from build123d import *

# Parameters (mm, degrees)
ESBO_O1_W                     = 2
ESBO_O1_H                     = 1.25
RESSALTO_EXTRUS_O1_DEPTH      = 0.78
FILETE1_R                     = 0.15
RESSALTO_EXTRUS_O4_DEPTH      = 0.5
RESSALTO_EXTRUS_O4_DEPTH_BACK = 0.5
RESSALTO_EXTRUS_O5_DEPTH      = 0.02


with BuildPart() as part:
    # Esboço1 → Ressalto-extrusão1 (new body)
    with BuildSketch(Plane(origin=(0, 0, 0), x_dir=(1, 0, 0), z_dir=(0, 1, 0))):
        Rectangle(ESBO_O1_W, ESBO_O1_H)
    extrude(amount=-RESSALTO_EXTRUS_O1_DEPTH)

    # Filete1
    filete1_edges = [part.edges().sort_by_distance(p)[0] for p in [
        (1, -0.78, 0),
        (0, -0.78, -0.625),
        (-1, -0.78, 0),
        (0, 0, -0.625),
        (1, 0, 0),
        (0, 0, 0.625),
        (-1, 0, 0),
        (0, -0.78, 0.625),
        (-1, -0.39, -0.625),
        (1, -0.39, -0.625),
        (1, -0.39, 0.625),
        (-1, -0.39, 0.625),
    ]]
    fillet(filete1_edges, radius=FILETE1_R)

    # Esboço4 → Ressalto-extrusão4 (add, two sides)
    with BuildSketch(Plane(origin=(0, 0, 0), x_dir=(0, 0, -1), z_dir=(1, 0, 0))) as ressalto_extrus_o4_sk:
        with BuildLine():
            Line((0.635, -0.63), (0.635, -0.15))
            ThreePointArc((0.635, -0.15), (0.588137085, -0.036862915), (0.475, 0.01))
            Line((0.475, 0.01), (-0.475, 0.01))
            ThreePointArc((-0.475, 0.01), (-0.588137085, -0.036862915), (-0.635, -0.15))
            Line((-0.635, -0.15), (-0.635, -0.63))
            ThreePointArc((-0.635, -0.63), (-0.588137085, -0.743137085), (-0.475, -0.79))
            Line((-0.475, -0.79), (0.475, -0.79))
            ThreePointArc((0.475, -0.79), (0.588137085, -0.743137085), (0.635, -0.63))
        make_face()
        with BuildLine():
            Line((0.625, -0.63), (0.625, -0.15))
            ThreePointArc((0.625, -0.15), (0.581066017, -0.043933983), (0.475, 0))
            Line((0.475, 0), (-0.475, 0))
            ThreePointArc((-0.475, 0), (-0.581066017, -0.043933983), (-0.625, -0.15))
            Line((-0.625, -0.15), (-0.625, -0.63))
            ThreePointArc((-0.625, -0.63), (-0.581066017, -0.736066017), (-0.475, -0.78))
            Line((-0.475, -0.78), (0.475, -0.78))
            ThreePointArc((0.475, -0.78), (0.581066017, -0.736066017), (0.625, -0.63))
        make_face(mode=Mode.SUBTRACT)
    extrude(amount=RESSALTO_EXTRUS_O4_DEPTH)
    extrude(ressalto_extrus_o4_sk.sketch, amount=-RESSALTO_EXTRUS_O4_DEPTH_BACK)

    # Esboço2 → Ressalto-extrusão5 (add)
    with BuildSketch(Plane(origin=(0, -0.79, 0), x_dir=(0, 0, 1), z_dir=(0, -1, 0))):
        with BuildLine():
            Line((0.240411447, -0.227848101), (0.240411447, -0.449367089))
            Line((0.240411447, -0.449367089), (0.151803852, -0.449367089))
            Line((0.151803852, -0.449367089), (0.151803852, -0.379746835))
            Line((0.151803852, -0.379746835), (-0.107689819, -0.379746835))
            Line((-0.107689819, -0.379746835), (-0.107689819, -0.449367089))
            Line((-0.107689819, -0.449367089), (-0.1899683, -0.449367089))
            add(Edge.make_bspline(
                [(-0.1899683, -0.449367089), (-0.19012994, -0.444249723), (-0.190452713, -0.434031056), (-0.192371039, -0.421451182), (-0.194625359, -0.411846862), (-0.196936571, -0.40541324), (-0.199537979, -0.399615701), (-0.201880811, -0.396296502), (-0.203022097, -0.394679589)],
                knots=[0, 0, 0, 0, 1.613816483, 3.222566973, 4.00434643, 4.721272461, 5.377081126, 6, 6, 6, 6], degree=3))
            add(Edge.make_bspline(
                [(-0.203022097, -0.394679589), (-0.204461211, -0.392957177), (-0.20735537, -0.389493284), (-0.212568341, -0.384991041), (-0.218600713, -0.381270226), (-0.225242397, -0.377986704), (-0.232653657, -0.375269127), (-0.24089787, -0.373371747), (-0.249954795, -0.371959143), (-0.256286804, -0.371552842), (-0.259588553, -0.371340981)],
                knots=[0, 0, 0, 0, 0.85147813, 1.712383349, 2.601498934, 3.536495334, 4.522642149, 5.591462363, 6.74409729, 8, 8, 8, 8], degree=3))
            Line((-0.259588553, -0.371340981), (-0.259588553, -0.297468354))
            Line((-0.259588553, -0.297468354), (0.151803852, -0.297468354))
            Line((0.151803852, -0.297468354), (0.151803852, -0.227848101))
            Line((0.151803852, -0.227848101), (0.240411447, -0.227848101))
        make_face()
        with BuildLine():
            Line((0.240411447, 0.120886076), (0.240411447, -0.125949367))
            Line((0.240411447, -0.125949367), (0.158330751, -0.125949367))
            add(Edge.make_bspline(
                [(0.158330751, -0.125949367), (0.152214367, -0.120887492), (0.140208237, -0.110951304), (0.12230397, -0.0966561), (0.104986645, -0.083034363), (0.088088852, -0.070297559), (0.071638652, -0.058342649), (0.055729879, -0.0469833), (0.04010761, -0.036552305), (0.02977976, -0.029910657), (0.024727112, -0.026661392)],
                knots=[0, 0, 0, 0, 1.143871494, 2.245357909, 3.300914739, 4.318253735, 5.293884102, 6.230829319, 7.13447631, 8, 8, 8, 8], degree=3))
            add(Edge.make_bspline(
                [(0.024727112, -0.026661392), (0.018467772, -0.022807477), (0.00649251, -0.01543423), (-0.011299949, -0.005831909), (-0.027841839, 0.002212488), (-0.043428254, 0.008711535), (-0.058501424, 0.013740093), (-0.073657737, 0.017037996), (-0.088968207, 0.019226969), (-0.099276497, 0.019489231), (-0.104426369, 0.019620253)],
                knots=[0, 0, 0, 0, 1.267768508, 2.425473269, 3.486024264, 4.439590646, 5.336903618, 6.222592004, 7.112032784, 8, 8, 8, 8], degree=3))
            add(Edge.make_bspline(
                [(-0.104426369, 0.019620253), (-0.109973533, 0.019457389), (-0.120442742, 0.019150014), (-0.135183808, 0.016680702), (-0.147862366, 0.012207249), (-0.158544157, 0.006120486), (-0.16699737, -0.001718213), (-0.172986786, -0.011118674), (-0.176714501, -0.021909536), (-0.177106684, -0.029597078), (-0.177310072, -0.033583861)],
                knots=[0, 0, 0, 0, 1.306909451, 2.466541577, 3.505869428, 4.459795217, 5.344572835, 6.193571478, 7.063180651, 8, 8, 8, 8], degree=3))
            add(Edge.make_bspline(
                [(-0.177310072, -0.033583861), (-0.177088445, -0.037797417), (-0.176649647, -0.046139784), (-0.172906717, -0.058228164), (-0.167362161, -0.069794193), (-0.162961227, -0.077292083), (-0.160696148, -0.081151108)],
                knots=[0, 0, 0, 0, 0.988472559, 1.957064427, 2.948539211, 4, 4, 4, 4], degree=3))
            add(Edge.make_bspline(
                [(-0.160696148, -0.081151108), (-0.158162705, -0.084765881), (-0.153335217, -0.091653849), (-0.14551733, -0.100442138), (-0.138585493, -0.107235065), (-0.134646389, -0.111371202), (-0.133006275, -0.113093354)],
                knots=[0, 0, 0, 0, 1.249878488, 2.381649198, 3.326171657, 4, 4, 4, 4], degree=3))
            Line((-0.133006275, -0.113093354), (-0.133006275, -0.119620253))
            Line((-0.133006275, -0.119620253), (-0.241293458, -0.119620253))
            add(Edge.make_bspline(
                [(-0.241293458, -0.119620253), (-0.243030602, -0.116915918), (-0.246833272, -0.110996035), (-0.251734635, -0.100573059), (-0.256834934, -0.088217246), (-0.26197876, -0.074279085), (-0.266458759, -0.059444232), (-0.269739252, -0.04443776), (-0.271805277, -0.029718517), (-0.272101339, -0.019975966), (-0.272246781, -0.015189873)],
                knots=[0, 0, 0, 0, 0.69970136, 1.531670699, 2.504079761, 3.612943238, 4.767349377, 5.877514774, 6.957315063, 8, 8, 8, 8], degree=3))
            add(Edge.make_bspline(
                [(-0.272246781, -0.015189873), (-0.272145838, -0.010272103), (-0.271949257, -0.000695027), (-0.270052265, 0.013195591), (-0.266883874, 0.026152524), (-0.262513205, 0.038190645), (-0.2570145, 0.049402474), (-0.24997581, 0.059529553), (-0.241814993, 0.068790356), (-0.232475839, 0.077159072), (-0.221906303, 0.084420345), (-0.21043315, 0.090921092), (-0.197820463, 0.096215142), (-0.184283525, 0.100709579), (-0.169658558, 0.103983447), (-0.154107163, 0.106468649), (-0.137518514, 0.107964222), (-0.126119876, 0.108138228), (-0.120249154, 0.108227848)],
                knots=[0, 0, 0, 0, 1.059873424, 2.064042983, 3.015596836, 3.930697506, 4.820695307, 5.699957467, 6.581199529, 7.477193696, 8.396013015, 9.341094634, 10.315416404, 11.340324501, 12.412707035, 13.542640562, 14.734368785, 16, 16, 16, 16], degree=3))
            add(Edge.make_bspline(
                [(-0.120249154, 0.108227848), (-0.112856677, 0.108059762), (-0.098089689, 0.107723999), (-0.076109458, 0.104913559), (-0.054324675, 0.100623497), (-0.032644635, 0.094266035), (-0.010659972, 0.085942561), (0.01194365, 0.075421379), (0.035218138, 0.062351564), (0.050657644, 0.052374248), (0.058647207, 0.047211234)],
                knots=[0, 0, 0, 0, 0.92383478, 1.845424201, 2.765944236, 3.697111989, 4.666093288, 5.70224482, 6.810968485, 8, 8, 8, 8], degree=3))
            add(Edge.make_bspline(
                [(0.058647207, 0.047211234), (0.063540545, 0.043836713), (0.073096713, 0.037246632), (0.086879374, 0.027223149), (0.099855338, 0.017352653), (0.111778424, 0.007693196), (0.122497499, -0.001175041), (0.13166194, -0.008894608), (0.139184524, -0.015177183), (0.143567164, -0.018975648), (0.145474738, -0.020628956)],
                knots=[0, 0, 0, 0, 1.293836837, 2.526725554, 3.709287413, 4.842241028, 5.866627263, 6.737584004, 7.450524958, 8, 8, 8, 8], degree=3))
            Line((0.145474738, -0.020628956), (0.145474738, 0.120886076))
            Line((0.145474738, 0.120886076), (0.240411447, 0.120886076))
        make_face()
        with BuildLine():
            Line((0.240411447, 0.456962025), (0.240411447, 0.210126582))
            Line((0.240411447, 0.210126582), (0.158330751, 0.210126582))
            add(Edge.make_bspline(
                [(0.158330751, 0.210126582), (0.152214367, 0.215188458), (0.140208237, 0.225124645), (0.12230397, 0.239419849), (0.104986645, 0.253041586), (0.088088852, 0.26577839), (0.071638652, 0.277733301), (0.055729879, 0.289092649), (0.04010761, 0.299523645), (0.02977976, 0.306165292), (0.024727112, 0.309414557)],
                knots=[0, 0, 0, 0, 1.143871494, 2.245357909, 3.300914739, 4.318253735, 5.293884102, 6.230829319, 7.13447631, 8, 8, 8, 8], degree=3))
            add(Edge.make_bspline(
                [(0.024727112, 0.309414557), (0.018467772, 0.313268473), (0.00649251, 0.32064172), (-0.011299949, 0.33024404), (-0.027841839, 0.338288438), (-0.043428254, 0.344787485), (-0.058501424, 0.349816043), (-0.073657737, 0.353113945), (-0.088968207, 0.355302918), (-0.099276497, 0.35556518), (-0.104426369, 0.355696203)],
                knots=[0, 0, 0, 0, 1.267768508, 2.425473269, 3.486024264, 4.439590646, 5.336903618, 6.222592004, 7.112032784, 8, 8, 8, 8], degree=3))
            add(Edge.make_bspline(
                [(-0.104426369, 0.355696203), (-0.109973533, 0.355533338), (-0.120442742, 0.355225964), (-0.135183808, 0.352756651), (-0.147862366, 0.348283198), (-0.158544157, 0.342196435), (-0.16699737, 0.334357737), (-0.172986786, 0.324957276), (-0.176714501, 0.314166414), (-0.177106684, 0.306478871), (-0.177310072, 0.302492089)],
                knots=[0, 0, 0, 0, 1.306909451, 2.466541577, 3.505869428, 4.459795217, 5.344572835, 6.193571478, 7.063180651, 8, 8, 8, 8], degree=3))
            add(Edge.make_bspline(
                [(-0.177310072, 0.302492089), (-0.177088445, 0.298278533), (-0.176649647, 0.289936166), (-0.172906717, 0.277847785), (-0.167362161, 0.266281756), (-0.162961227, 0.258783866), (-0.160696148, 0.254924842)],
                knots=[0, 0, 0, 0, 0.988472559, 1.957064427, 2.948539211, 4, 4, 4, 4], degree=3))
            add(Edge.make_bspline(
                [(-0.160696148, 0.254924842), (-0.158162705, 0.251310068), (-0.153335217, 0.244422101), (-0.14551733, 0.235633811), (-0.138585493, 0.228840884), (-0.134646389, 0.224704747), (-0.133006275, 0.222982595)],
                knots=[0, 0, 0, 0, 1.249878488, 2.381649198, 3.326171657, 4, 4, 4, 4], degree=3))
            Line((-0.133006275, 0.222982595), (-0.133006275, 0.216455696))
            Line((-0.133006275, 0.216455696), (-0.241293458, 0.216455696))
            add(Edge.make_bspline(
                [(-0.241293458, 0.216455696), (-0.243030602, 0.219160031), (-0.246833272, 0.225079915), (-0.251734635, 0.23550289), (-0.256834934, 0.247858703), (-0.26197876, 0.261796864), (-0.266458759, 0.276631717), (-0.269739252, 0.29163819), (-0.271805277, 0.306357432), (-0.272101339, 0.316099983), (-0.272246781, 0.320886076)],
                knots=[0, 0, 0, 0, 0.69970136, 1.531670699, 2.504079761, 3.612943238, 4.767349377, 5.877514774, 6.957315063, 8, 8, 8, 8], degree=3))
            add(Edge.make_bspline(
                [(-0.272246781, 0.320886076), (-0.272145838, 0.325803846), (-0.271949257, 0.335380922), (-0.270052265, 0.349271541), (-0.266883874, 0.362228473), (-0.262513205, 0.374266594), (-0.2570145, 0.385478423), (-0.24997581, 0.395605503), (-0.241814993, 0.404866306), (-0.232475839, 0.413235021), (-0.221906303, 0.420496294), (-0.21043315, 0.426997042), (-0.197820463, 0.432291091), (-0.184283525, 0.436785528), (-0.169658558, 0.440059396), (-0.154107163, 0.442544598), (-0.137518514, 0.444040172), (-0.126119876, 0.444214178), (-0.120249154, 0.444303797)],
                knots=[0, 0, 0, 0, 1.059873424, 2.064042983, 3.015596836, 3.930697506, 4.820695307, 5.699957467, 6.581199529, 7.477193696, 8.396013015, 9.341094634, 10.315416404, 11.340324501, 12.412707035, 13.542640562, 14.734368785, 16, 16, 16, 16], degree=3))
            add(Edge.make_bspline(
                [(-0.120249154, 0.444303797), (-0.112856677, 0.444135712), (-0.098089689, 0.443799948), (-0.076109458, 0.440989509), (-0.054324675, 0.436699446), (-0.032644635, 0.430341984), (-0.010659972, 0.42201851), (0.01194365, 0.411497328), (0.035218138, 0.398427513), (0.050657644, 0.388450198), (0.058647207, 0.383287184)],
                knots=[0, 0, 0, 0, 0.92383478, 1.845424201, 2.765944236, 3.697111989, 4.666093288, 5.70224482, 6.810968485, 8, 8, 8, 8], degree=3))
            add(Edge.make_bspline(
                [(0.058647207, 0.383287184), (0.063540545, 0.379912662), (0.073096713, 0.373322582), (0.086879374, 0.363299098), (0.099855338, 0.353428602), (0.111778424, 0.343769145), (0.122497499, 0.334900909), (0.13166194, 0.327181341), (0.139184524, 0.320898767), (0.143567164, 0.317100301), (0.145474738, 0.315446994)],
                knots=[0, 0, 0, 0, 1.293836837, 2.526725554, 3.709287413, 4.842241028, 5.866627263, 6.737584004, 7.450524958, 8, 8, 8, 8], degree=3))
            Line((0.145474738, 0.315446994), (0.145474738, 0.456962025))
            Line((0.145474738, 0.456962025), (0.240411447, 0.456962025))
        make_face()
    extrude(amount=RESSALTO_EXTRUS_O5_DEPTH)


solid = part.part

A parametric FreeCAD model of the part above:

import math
import FreeCAD as App
import Part
import Sketcher

V = App.Vector

doc = App.newDocument("Part")
params = doc.addObject("Spreadsheet::Sheet", "Params")
for row, (alias, value) in enumerate([
    ("sketch1_width", "2 mm"),
    ("sketch1_height", "1.25 mm"),
    ("pad1_length", "0.78 mm"),
    ("fillet_radius", "0.15 mm"),
    ("sketch2_radius", "0.16 mm"),
    ("sketch2_radius2", "0.15 mm"),
    ("sketch2_width", "0.48 mm"),
    ("sketch2_height", "0.95 mm"),
    ("pad2_length", "0.5 mm"),
    ("pad2_length2", "0.5 mm"),
    ("pad3_length", "0.02 mm"),
], start=1):
    params.set(f"A{row}", alias)
    params.set(f"B{row}", "=" + value)
    params.setAlias(f"B{row}", alias)

body = doc.addObject("PartDesign::Body", "Body")

# Sketch on XZ plane
sketch1 = doc.addObject("Sketcher::SketchObject", "Sketch")
body.addObject(sketch1)
sketch1.AttachmentSupport = (doc.XZ_Plane, [""])
sketch1.MapMode = "FlatFace"
sketch1.addGeometry([
    Part.LineSegment(V(-1, -0.625, 0), V(-1, 0.625, 0)),
    Part.LineSegment(V(-1, 0.625, 0), V(1, 0.625, 0)),
    Part.LineSegment(V(1, 0.625, 0), V(1, -0.625, 0)),
    Part.LineSegment(V(1, -0.625, 0), V(-1, -0.625, 0)),
], False)
sketch1.addConstraint([
    Sketcher.Constraint("Coincident", 0, 2, 1, 1),
    Sketcher.Constraint("Coincident", 1, 2, 2, 1),
    Sketcher.Constraint("Coincident", 2, 2, 3, 1),
    Sketcher.Constraint("Coincident", 3, 2, 0, 1),
    Sketcher.Constraint("Vertical", 0),
    Sketcher.Constraint("Horizontal", 1),
    Sketcher.Constraint("Vertical", 2),
    Sketcher.Constraint("Horizontal", 3),
    Sketcher.Constraint("Symmetric", 0, 2, 2, 2, -1, 1),
    Sketcher.Constraint("DistanceX", 1, 1, 1, 2, 2.0),
    Sketcher.Constraint("DistanceY", 0, 1, 0, 2, 1.25),
])
sketch1.setExpression("Constraints[9]", "Params.sketch1_width")
sketch1.setExpression("Constraints[10]", "Params.sketch1_height")
pad1 = doc.addObject("PartDesign::Pad", "Pad")
body.addObject(pad1)
pad1.Profile = sketch1
pad1.setExpression("Length", "Params.pad1_length")
doc.recompute()

fillet = doc.addObject("PartDesign::Fillet", "Fillet")
body.addObject(fillet)
fillet.Base = (pad1, ["Edge1"])
fillet.UseAllEdges = True
fillet.setExpression("Radius", "Params.fillet_radius")

# Sketch on YZ plane
sketch2 = doc.addObject("Sketcher::SketchObject", "Sketch001")
body.addObject(sketch2)
sketch2.AttachmentSupport = (doc.YZ_Plane, [""])
sketch2.MapMode = "FlatFace"
sketch2.addGeometry([
    Part.LineSegment(V(-0.63, -0.635, 0), V(-0.15, -0.635, 0)),  # 0
    Part.ArcOfCircle(Part.Circle(V(-0.15, -0.475, 0), V(0, 0, 1), 0.16), math.radians(-90), math.radians(0)),  # 1
    Part.LineSegment(V(0.01, -0.475, 0), V(0.01, 0.475, 0)),  # 2
    Part.ArcOfCircle(Part.Circle(V(-0.15, 0.475, 0), V(0, 0, 1), 0.16), math.radians(0), math.radians(90)),  # 3
    Part.LineSegment(V(-0.15, 0.635, 0), V(-0.63, 0.635, 0)),  # 4
    Part.ArcOfCircle(Part.Circle(V(-0.63, 0.475, 0), V(0, 0, 1), 0.16), math.radians(90), math.radians(180)),  # 5
    Part.LineSegment(V(-0.79, 0.475, 0), V(-0.79, -0.475, 0)),  # 6
    Part.ArcOfCircle(Part.Circle(V(-0.63, -0.475, 0), V(0, 0, 1), 0.16), math.radians(180), math.radians(270)),  # 7
    Part.LineSegment(V(-0.15, -0.625, 0), V(-0.63, -0.625, 0)),  # 8
    Part.ArcOfCircle(Part.Circle(V(-0.63, -0.475, 0), V(0, 0, 1), 0.15), math.radians(-180), math.radians(-90)),  # 9
    Part.LineSegment(V(-0.78, -0.475, 0), V(-0.78, 0.475, 0)),  # 10
    Part.ArcOfCircle(Part.Circle(V(-0.63, 0.475, 0), V(0, 0, 1), 0.15), math.radians(90), math.radians(180)),  # 11
    Part.LineSegment(V(-0.63, 0.625, 0), V(-0.15, 0.625, 0)),  # 12
    Part.ArcOfCircle(Part.Circle(V(-0.15, 0.475, 0), V(0, 0, 1), 0.15), math.radians(0), math.radians(90)),  # 13
    Part.LineSegment(V(0, 0.475, 0), V(0, -0.475, 0)),  # 14
    Part.ArcOfCircle(Part.Circle(V(-0.15, -0.475, 0), V(0, 0, 1), 0.15), math.radians(-90), math.radians(0)),  # 15
], False)
sketch2.addConstraint([
    Sketcher.Constraint("Tangent", 0, 2, 1, 1),
    Sketcher.Constraint("Tangent", 1, 2, 2, 1),
    Sketcher.Constraint("Tangent", 2, 2, 3, 1),
    Sketcher.Constraint("Tangent", 3, 2, 4, 1),
    Sketcher.Constraint("Tangent", 4, 2, 5, 1),
    Sketcher.Constraint("Tangent", 5, 2, 6, 1),
    Sketcher.Constraint("Tangent", 6, 2, 7, 1),
    Sketcher.Constraint("Tangent", 7, 2, 0, 1),
    Sketcher.Constraint("Tangent", 8, 2, 9, 2),
    Sketcher.Constraint("Tangent", 9, 1, 10, 1),
    Sketcher.Constraint("Tangent", 10, 2, 11, 2),
    Sketcher.Constraint("Tangent", 11, 1, 12, 1),
    Sketcher.Constraint("Tangent", 12, 2, 13, 2),
    Sketcher.Constraint("Tangent", 13, 1, 14, 1),
    Sketcher.Constraint("Tangent", 14, 2, 15, 2),
    Sketcher.Constraint("Tangent", 15, 1, 8, 1),
    Sketcher.Constraint("Horizontal", 0),
    Sketcher.Constraint("Vertical", 2),
    Sketcher.Constraint("Horizontal", 4),
    Sketcher.Constraint("Vertical", 6),
    Sketcher.Constraint("Horizontal", 8),
    Sketcher.Constraint("Vertical", 10),
    Sketcher.Constraint("Horizontal", 12),
    Sketcher.Constraint("Vertical", 14),
    Sketcher.Constraint("Coincident", 9, 3, 7, 3),
    Sketcher.Constraint("Coincident", 11, 3, 5, 3),
    Sketcher.Constraint("Coincident", 13, 3, 3, 3),
    Sketcher.Constraint("Equal", 1, 3),
    Sketcher.Constraint("Equal", 3, 5),
    Sketcher.Constraint("Equal", 5, 7),
    Sketcher.Constraint("Equal", 13, 15),
    Sketcher.Constraint("Symmetric", 13, 1, 14, 2, -1, 1),
    Sketcher.Constraint("Radius", 1, 0.16),
    Sketcher.Constraint("Radius", 9, 0.15),
    Sketcher.Constraint("DistanceX", 0, 1, 0, 2, 0.48),
    Sketcher.Constraint("DistanceY", 2, 1, 2, 2, 0.95),
])
sketch2.setExpression("Constraints[32]", "Params.sketch2_radius")
sketch2.setExpression("Constraints[33]", "Params.sketch2_radius2")
sketch2.setExpression("Constraints[34]", "Params.sketch2_width")
sketch2.setExpression("Constraints[35]", "Params.sketch2_height")
pad2 = doc.addObject("PartDesign::Pad", "Pad001")
body.addObject(pad2)
pad2.Profile = sketch2
pad2.Type = "TwoLengths"
pad2.setExpression("Length", "Params.pad2_length")
pad2.setExpression("Length2", "Params.pad2_length2")

# Sketch on XZ plane
sketch3 = doc.addObject("Sketcher::SketchObject", "Sketch002")
body.addObject(sketch3)
sketch3.AttachmentSupport = (doc.XZ_Plane, [""])
sketch3.MapMode = "FlatFace"
sketch3.AttachmentOffset = App.Placement(V(0, 0, 0.79), App.Rotation())
sketch3.addGeometry([
    Part.LineSegment(V(0.449367, 0.240411, 0), V(0.227848, 0.240411, 0)),  # 0
    Part.LineSegment(V(0.227848, 0.240411, 0), V(0.227848, 0.151804, 0)),  # 1
    Part.LineSegment(V(0.227848, 0.151804, 0), V(0.297468, 0.151804, 0)),  # 2
    Part.LineSegment(V(0.297468, 0.151804, 0), V(0.297468, -0.259589, 0)),  # 3
    Part.LineSegment(V(0.297468, -0.259589, 0), V(0.371341, -0.259589, 0)),  # 4
    Part.BSplineCurve([V(0.39468, -0.203022, 0), V(0.392957, -0.204461, 0), V(0.389493, -0.207355, 0), V(0.384991, -0.212568, 0), V(0.38127, -0.218601, 0), V(0.377987, -0.225242, 0), V(0.375269, -0.232654, 0), V(0.373372, -0.240898, 0), V(0.371959, -0.249955, 0), V(0.371553, -0.256287, 0), V(0.371341, -0.259589, 0)], [4, 1, 1, 1, 1, 1, 1, 1, 4], [0, 0.85147813, 1.712383349, 2.601498934, 3.536495334, 4.522642149, 5.591462363, 6.74409729, 8], False, 3, [1, 1, 1, 1, 1, 1, 1, 1, 1, 1, 1], False),  # 5
    Part.BSplineCurve([V(0.449367, -0.189968, 0), V(0.44425, -0.19013, 0), V(0.434031, -0.190453, 0), V(0.421451, -0.192371, 0), V(0.411847, -0.194625, 0), V(0.405413, -0.196937, 0), V(0.399616, -0.199538, 0), V(0.396297, -0.201881, 0), V(0.39468, -0.203022, 0)], [4, 1, 1, 1, 1, 1, 4], [0, 1.613816483, 3.222566973, 4.00434643, 4.721272461, 5.377081126, 6], False, 3, [1, 1, 1, 1, 1, 1, 1, 1, 1], False),  # 6
    Part.LineSegment(V(0.449367, -0.189968, 0), V(0.449367, -0.10769, 0)),  # 7
    Part.LineSegment(V(0.449367, -0.10769, 0), V(0.379747, -0.10769, 0)),  # 8
    Part.LineSegment(V(0.379747, -0.10769, 0), V(0.379747, 0.151804, 0)),  # 9
    Part.LineSegment(V(0.379747, 0.151804, 0), V(0.449367, 0.151804, 0)),  # 10
    Part.LineSegment(V(0.449367, 0.151804, 0), V(0.449367, 0.240411, 0)),  # 11
    Part.LineSegment(V(0.125949, 0.240411, 0), V(-0.120886, 0.240411, 0)),  # 12
    Part.LineSegment(V(-0.120886, 0.240411, 0), V(-0.120886, 0.145475, 0)),  # 13
    Part.LineSegment(V(-0.120886, 0.145475, 0), V(0.020629, 0.145475, 0)),  # 14
    Part.BSplineCurve([V(-0.047211, 0.058647, 0), V(-0.043837, 0.063541, 0), V(-0.037247, 0.073097, 0), V(-0.027223, 0.086879, 0), V(-0.017353, 0.099855, 0), V(-0.007693, 0.111778, 0), V(0.001175, 0.122497, 0), V(0.008895, 0.131662, 0), V(0.015177, 0.139185, 0), V(0.018976, 0.143567, 0), V(0.020629, 0.145475, 0)], [4, 1, 1, 1, 1, 1, 1, 1, 4], [0, 1.293836837, 2.526725554, 3.709287413, 4.842241028, 5.866627263, 6.737584004, 7.450524958, 8], False, 3, [1, 1, 1, 1, 1, 1, 1, 1, 1, 1, 1], False),  # 15
    Part.BSplineCurve([V(-0.108228, -0.120249, 0), V(-0.10806, -0.112857, 0), V(-0.107724, -0.09809, 0), V(-0.104914, -0.076109, 0), V(-0.100623, -0.054325, 0), V(-0.094266, -0.032645, 0), V(-0.085943, -0.01066, 0), V(-0.075421, 0.011944, 0), V(-0.062352, 0.035218, 0), V(-0.052374, 0.050658, 0), V(-0.047211, 0.058647, 0)], [4, 1, 1, 1, 1, 1, 1, 1, 4], [0, 0.92383478, 1.845424201, 2.765944236, 3.697111989, 4.666093288, 5.70224482, 6.810968485, 8], False, 3, [1, 1, 1, 1, 1, 1, 1, 1, 1, 1, 1], False),  # 16
    Part.BSplineCurve([V(0.01519, -0.272247, 0), V(0.010272, -0.272146, 0), V(0.000695, -0.271949, 0), V(-0.013196, -0.270052, 0), V(-0.026153, -0.266884, 0), V(-0.038191, -0.262513, 0), V(-0.049402, -0.257014, 0), V(-0.05953, -0.249976, 0), V(-0.06879, -0.241815, 0), V(-0.077159, -0.232476, 0), V(-0.08442, -0.221906, 0), V(-0.090921, -0.210433, 0), V(-0.096215, -0.19782, 0), V(-0.10071, -0.184284, 0), V(-0.103983, -0.169659, 0), V(-0.106469, -0.154107, 0), V(-0.107964, -0.137519, 0), V(-0.108138, -0.12612, 0), V(-0.108228, -0.120249, 0)], [4, 1, 1, 1, 1, 1, 1, 1, 1, 1, 1, 1, 1, 1, 1, 1, 4], [0, 1.059873424, 2.064042983, 3.015596836, 3.930697506, 4.820695307, 5.699957467, 6.581199529, 7.477193696, 8.396013015, 9.341094634, 10.315416404, 11.340324501, 12.412707035, 13.542640562, 14.734368785, 16], False, 3, [1, 1, 1, 1, 1, 1, 1, 1, 1, 1, 1, 1, 1, 1, 1, 1, 1, 1, 1], False),  # 17
    Part.BSplineCurve([V(0.11962, -0.241293, 0), V(0.116916, -0.243031, 0), V(0.110996, -0.246833, 0), V(0.100573, -0.251735, 0), V(0.088217, -0.256835, 0), V(0.074279, -0.261979, 0), V(0.059444, -0.266459, 0), V(0.044438, -0.269739, 0), V(0.029719, -0.271805, 0), V(0.019976, -0.272101, 0), V(0.01519, -0.272247, 0)], [4, 1, 1, 1, 1, 1, 1, 1, 4], [0, 0.69970136, 1.531670699, 2.504079761, 3.612943238, 4.767349377, 5.877514774, 6.957315063, 8], False, 3, [1, 1, 1, 1, 1, 1, 1, 1, 1, 1, 1], False),  # 18
    Part.LineSegment(V(0.11962, -0.241293, 0), V(0.11962, -0.133006, 0)),  # 19
    Part.LineSegment(V(0.11962, -0.133006, 0), V(0.113093, -0.133006, 0)),  # 20
    Part.BSplineCurve([V(0.081151, -0.160696, 0), V(0.084766, -0.158163, 0), V(0.091654, -0.153335, 0), V(0.100442, -0.145517, 0), V(0.107235, -0.138585, 0), V(0.111371, -0.134646, 0), V(0.113093, -0.133006, 0)], [4, 1, 1, 1, 4], [0, 1.249878488, 2.381649198, 3.326171657, 4], False, 3, [1, 1, 1, 1, 1, 1, 1], False),  # 21
    Part.BSplineCurve([V(0.033584, -0.17731, 0), V(0.037797, -0.177088, 0), V(0.04614, -0.17665, 0), V(0.058228, -0.172907, 0), V(0.069794, -0.167362, 0), V(0.077292, -0.162961, 0), V(0.081151, -0.160696, 0)], [4, 1, 1, 1, 4], [0, 0.988472559, 1.957064427, 2.948539211, 4], False, 3, [1, 1, 1, 1, 1, 1, 1], False),  # 22
    Part.BSplineCurve([V(-0.01962, -0.104426, 0), V(-0.019457, -0.109974, 0), V(-0.01915, -0.120443, 0), V(-0.016681, -0.135184, 0), V(-0.012207, -0.147862, 0), V(-0.00612, -0.158544, 0), V(0.001718, -0.166997, 0), V(0.011119, -0.172987, 0), V(0.02191, -0.176715, 0), V(0.029597, -0.177107, 0), V(0.033584, -0.17731, 0)], [4, 1, 1, 1, 1, 1, 1, 1, 4], [0, 1.306909451, 2.466541577, 3.505869428, 4.459795217, 5.344572835, 6.193571478, 7.063180651, 8], False, 3, [1, 1, 1, 1, 1, 1, 1, 1, 1, 1, 1], False),  # 23
    Part.BSplineCurve([V(0.026661, 0.024727, 0), V(0.022807, 0.018468, 0), V(0.015434, 0.006493, 0), V(0.005832, -0.0113, 0), V(-0.002212, -0.027842, 0), V(-0.008712, -0.043428, 0), V(-0.01374, -0.058501, 0), V(-0.017038, -0.073658, 0), V(-0.019227, -0.088968, 0), V(-0.019489, -0.099276, 0), V(-0.01962, -0.104426, 0)], [4, 1, 1, 1, 1, 1, 1, 1, 4], [0, 1.267768508, 2.425473269, 3.486024264, 4.439590646, 5.336903618, 6.222592004, 7.112032784, 8], False, 3, [1, 1, 1, 1, 1, 1, 1, 1, 1, 1, 1], False),  # 24
    Part.BSplineCurve([V(0.125949, 0.158331, 0), V(0.120887, 0.152214, 0), V(0.110951, 0.140208, 0), V(0.096656, 0.122304, 0), V(0.083034, 0.104987, 0), V(0.070298, 0.088089, 0), V(0.058343, 0.071639, 0), V(0.046983, 0.05573, 0), V(0.036552, 0.040108, 0), V(0.029911, 0.02978, 0), V(0.026661, 0.024727, 0)], [4, 1, 1, 1, 1, 1, 1, 1, 4], [0, 1.143871494, 2.245357909, 3.300914739, 4.318253735, 5.293884102, 6.230829319, 7.13447631, 8], False, 3, [1, 1, 1, 1, 1, 1, 1, 1, 1, 1, 1], False),  # 25
    Part.LineSegment(V(0.125949, 0.158331, 0), V(0.125949, 0.240411, 0)),  # 26
    Part.LineSegment(V(-0.210127, 0.240411, 0), V(-0.456962, 0.240411, 0)),  # 27
    Part.LineSegment(V(-0.456962, 0.240411, 0), V(-0.456962, 0.145475, 0)),  # 28
    Part.LineSegment(V(-0.456962, 0.145475, 0), V(-0.315447, 0.145475, 0)),  # 29
    Part.BSplineCurve([V(-0.383287, 0.058647, 0), V(-0.379913, 0.063541, 0), V(-0.373323, 0.073097, 0), V(-0.363299, 0.086879, 0), V(-0.353429, 0.099855, 0), V(-0.343769, 0.111778, 0), V(-0.334901, 0.122497, 0), V(-0.327181, 0.131662, 0), V(-0.320899, 0.139185, 0), V(-0.3171, 0.143567, 0), V(-0.315447, 0.145475, 0)], [4, 1, 1, 1, 1, 1, 1, 1, 4], [0, 1.293836837, 2.526725554, 3.709287413, 4.842241028, 5.866627263, 6.737584004, 7.450524958, 8], False, 3, [1, 1, 1, 1, 1, 1, 1, 1, 1, 1, 1], False),  # 30
    Part.BSplineCurve([V(-0.444304, -0.120249, 0), V(-0.444136, -0.112857, 0), V(-0.4438, -0.09809, 0), V(-0.44099, -0.076109, 0), V(-0.436699, -0.054325, 0), V(-0.430342, -0.032645, 0), V(-0.422019, -0.01066, 0), V(-0.411497, 0.011944, 0), V(-0.398428, 0.035218, 0), V(-0.38845, 0.050658, 0), V(-0.383287, 0.058647, 0)], [4, 1, 1, 1, 1, 1, 1, 1, 4], [0, 0.92383478, 1.845424201, 2.765944236, 3.697111989, 4.666093288, 5.70224482, 6.810968485, 8], False, 3, [1, 1, 1, 1, 1, 1, 1, 1, 1, 1, 1], False),  # 31
    Part.BSplineCurve([V(-0.320886, -0.272247, 0), V(-0.325804, -0.272146, 0), V(-0.335381, -0.271949, 0), V(-0.349272, -0.270052, 0), V(-0.362228, -0.266884, 0), V(-0.374267, -0.262513, 0), V(-0.385478, -0.257014, 0), V(-0.395606, -0.249976, 0), V(-0.404866, -0.241815, 0), V(-0.413235, -0.232476, 0), V(-0.420496, -0.221906, 0), V(-0.426997, -0.210433, 0), V(-0.432291, -0.19782, 0), V(-0.436786, -0.184284, 0), V(-0.440059, -0.169659, 0), V(-0.442545, -0.154107, 0), V(-0.44404, -0.137519, 0), V(-0.444214, -0.12612, 0), V(-0.444304, -0.120249, 0)], [4, 1, 1, 1, 1, 1, 1, 1, 1, 1, 1, 1, 1, 1, 1, 1, 4], [0, 1.059873424, 2.064042983, 3.015596836, 3.930697506, 4.820695307, 5.699957467, 6.581199529, 7.477193696, 8.396013015, 9.341094634, 10.315416404, 11.340324501, 12.412707035, 13.542640562, 14.734368785, 16], False, 3, [1, 1, 1, 1, 1, 1, 1, 1, 1, 1, 1, 1, 1, 1, 1, 1, 1, 1, 1], False),  # 32
    Part.BSplineCurve([V(-0.216456, -0.241293, 0), V(-0.21916, -0.243031, 0), V(-0.22508, -0.246833, 0), V(-0.235503, -0.251735, 0), V(-0.247859, -0.256835, 0), V(-0.261797, -0.261979, 0), V(-0.276632, -0.266459, 0), V(-0.291638, -0.269739, 0), V(-0.306357, -0.271805, 0), V(-0.3161, -0.272101, 0), V(-0.320886, -0.272247, 0)], [4, 1, 1, 1, 1, 1, 1, 1, 4], [0, 0.69970136, 1.531670699, 2.504079761, 3.612943238, 4.767349377, 5.877514774, 6.957315063, 8], False, 3, [1, 1, 1, 1, 1, 1, 1, 1, 1, 1, 1], False),  # 33
    Part.LineSegment(V(-0.216456, -0.241293, 0), V(-0.216456, -0.133006, 0)),  # 34
    Part.LineSegment(V(-0.216456, -0.133006, 0), V(-0.222983, -0.133006, 0)),  # 35
    Part.BSplineCurve([V(-0.254925, -0.160696, 0), V(-0.25131, -0.158163, 0), V(-0.244422, -0.153335, 0), V(-0.235634, -0.145517, 0), V(-0.228841, -0.138585, 0), V(-0.224705, -0.134646, 0), V(-0.222983, -0.133006, 0)], [4, 1, 1, 1, 4], [0, 1.249878488, 2.381649198, 3.326171657, 4], False, 3, [1, 1, 1, 1, 1, 1, 1], False),  # 36
    Part.BSplineCurve([V(-0.302492, -0.17731, 0), V(-0.298279, -0.177088, 0), V(-0.289936, -0.17665, 0), V(-0.277848, -0.172907, 0), V(-0.266282, -0.167362, 0), V(-0.258784, -0.162961, 0), V(-0.254925, -0.160696, 0)], [4, 1, 1, 1, 4], [0, 0.988472559, 1.957064427, 2.948539211, 4], False, 3, [1, 1, 1, 1, 1, 1, 1], False),  # 37
    Part.BSplineCurve([V(-0.355696, -0.104426, 0), V(-0.355533, -0.109974, 0), V(-0.355226, -0.120443, 0), V(-0.352757, -0.135184, 0), V(-0.348283, -0.147862, 0), V(-0.342196, -0.158544, 0), V(-0.334358, -0.166997, 0), V(-0.324957, -0.172987, 0), V(-0.314166, -0.176715, 0), V(-0.306479, -0.177107, 0), V(-0.302492, -0.17731, 0)], [4, 1, 1, 1, 1, 1, 1, 1, 4], [0, 1.306909451, 2.466541577, 3.505869428, 4.459795217, 5.344572835, 6.193571478, 7.063180651, 8], False, 3, [1, 1, 1, 1, 1, 1, 1, 1, 1, 1, 1], False),  # 38
    Part.BSplineCurve([V(-0.309415, 0.024727, 0), V(-0.313268, 0.018468, 0), V(-0.320642, 0.006493, 0), V(-0.330244, -0.0113, 0), V(-0.338288, -0.027842, 0), V(-0.344787, -0.043428, 0), V(-0.349816, -0.058501, 0), V(-0.353114, -0.073658, 0), V(-0.355303, -0.088968, 0), V(-0.355565, -0.099276, 0), V(-0.355696, -0.104426, 0)], [4, 1, 1, 1, 1, 1, 1, 1, 4], [0, 1.267768508, 2.425473269, 3.486024264, 4.439590646, 5.336903618, 6.222592004, 7.112032784, 8], False, 3, [1, 1, 1, 1, 1, 1, 1, 1, 1, 1, 1], False),  # 39
    Part.BSplineCurve([V(-0.210127, 0.158331, 0), V(-0.215188, 0.152214, 0), V(-0.225125, 0.140208, 0), V(-0.23942, 0.122304, 0), V(-0.253042, 0.104987, 0), V(-0.265778, 0.088089, 0), V(-0.277733, 0.071639, 0), V(-0.289093, 0.05573, 0), V(-0.299524, 0.040108, 0), V(-0.306165, 0.02978, 0), V(-0.309415, 0.024727, 0)], [4, 1, 1, 1, 1, 1, 1, 1, 4], [0, 1.143871494, 2.245357909, 3.300914739, 4.318253735, 5.293884102, 6.230829319, 7.13447631, 8], False, 3, [1, 1, 1, 1, 1, 1, 1, 1, 1, 1, 1], False),  # 40
    Part.LineSegment(V(-0.210127, 0.158331, 0), V(-0.210127, 0.240411, 0)),  # 41
], False)
sketch3.addConstraint([
    Sketcher.Constraint("Block", 5),
    Sketcher.Constraint("Block", 6),
    Sketcher.Constraint("Block", 15),
    Sketcher.Constraint("Block", 16),
    Sketcher.Constraint("Block", 17),
    Sketcher.Constraint("Block", 18),
    Sketcher.Constraint("Block", 21),
    Sketcher.Constraint("Block", 22),
    Sketcher.Constraint("Block", 23),
    Sketcher.Constraint("Block", 24),
    Sketcher.Constraint("Block", 25),
    Sketcher.Constraint("Block", 30),
    Sketcher.Constraint("Block", 31),
    Sketcher.Constraint("Block", 32),
    Sketcher.Constraint("Block", 33),
    Sketcher.Constraint("Block", 36),
    Sketcher.Constraint("Block", 37),
    Sketcher.Constraint("Block", 38),
    Sketcher.Constraint("Block", 39),
    Sketcher.Constraint("Block", 40),
    Sketcher.Constraint("Coincident", 0, 2, 1, 1),
    Sketcher.Constraint("Coincident", 1, 2, 2, 1),
    Sketcher.Constraint("Coincident", 2, 2, 3, 1),
    Sketcher.Constraint("Coincident", 3, 2, 4, 1),
    Sketcher.Constraint("Coincident", 4, 2, 5, 2),
    Sketcher.Constraint("Coincident", 6, 1, 7, 1),
    Sketcher.Constraint("Coincident", 7, 2, 8, 1),
    Sketcher.Constraint("Coincident", 8, 2, 9, 1),
    Sketcher.Constraint("Coincident", 9, 2, 10, 1),
    Sketcher.Constraint("Coincident", 10, 2, 11, 1),
    Sketcher.Constraint("Coincident", 11, 2, 0, 1),
    Sketcher.Constraint("Coincident", 12, 2, 13, 1),
    Sketcher.Constraint("Coincident", 13, 2, 14, 1),
    Sketcher.Constraint("Coincident", 14, 2, 15, 2),
    Sketcher.Constraint("Coincident", 18, 1, 19, 1),
    Sketcher.Constraint("Coincident", 19, 2, 20, 1),
    Sketcher.Constraint("Coincident", 20, 2, 21, 2),
    Sketcher.Constraint("Coincident", 25, 1, 26, 1),
    Sketcher.Constraint("Coincident", 26, 2, 12, 1),
    Sketcher.Constraint("Coincident", 27, 2, 28, 1),
    Sketcher.Constraint("Coincident", 28, 2, 29, 1),
    Sketcher.Constraint("Coincident", 29, 2, 30, 2),
    Sketcher.Constraint("Coincident", 33, 1, 34, 1),
    Sketcher.Constraint("Coincident", 34, 2, 35, 1),
    Sketcher.Constraint("Coincident", 35, 2, 36, 2),
    Sketcher.Constraint("Coincident", 40, 1, 41, 1),
    Sketcher.Constraint("Coincident", 41, 2, 27, 1),
    Sketcher.Constraint("Horizontal", 0),
    Sketcher.Constraint("Vertical", 1),
    Sketcher.Constraint("Horizontal", 2),
    Sketcher.Constraint("Vertical", 3),
    Sketcher.Constraint("Horizontal", 4),
    Sketcher.Constraint("Vertical", 7),
    Sketcher.Constraint("Horizontal", 8),
    Sketcher.Constraint("Vertical", 9),
    Sketcher.Constraint("Horizontal", 10),
    Sketcher.Constraint("Vertical", 11),
    Sketcher.Constraint("Horizontal", 12),
    Sketcher.Constraint("Vertical", 13),
    Sketcher.Constraint("Horizontal", 14),
    Sketcher.Constraint("Vertical", 19),
    Sketcher.Constraint("Horizontal", 20),
    Sketcher.Constraint("Vertical", 26),
    Sketcher.Constraint("Horizontal", 27),
    Sketcher.Constraint("Vertical", 28),
    Sketcher.Constraint("Horizontal", 29),
    Sketcher.Constraint("Vertical", 34),
    Sketcher.Constraint("Horizontal", 35),
    Sketcher.Constraint("Vertical", 41),
    Sketcher.Constraint("Horizontal", 2, 2, 9, 2),
    Sketcher.Constraint("Horizontal", 11, 2, 12, 2),
    Sketcher.Constraint("Horizontal", 26, 2, 27, 2),
    Sketcher.Constraint("Vertical", 7, 2, 10, 2),
    Sketcher.Constraint("Equal", 2, 8),
    Sketcher.Constraint("Equal", 12, 27),
    Sketcher.Constraint("DistanceY", 3, 2, 0, 2, 0.5),
    Sketcher.Constraint("DistanceX", 0, 2, 0, 1, 0.221519),
    Sketcher.Constraint("DistanceX", 2, 1, 2, 2, 0.06962),
    Sketcher.Constraint("DistanceY", 7, 1, 7, 2, 0.082278),
    Sketcher.Constraint("DistanceX", 12, 2, 12, 1, 0.246835),
    Sketcher.Constraint("DistanceY", 1, 2, 1, 1, 0.088608),
])
pad3 = doc.addObject("PartDesign::Pad", "Pad002")
body.addObject(pad3)
pad3.Profile = sketch3
pad3.setExpression("Length", "Params.pad3_length")

doc.recompute()
